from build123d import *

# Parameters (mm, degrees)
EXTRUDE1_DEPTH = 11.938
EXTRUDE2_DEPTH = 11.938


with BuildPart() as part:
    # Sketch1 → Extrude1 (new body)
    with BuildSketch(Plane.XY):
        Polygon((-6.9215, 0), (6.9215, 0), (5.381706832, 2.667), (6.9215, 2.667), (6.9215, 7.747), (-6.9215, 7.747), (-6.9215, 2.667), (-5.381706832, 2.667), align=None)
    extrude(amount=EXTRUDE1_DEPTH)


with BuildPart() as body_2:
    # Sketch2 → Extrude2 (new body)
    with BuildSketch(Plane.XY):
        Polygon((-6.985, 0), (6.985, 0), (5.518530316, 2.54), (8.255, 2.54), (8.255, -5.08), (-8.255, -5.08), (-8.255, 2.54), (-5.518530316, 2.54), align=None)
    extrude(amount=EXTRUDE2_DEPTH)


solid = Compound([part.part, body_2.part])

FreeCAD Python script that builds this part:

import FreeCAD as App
import Part
import Sketcher
Q = App.Units.Quantity


def add_polygon(sketch, points):
    """Adds a closed chain of lines whose ends are joined by coincident constraints."""
    first, n = sketch.GeometryCount, len(points)
    for a, b in zip(points, points[1:] + points[:1]):
        sketch.addGeometry(Part.LineSegment(App.Vector(*a, 0), App.Vector(*b, 0)), False)
    for i in range(n):
        sketch.addConstraint(Sketcher.Constraint("Coincident", first + i, 2, first + (i + 1) % n, 1))

doc = App.newDocument("Part")
params = doc.addObject("Spreadsheet::Sheet", "Params")
for row, (alias, value) in enumerate([
    ("sketch1_height", "0.2 in"),
    ("sketch1_width", "0.545 in"),
    ("pad1_length", "0.47 in"),
    ("sketch2_height", "0.3 in"),
    ("sketch2_width", "0.55 in"),
    ("sketch2_width2", "0.65 in"),
    ("pad2_length", "0.47 in"),
], start=1):
    params.set(f"A{row}", alias)
    params.set(f"B{row}", "=" + value)
    params.setAlias(f"B{row}", alias)

body = doc.addObject("PartDesign::Body", "Body")

# Sketch on XY plane
sketch1 = doc.addObject("Sketcher::SketchObject", "Sketch")
body.addObject(sketch1)
sketch1.AttachmentSupport = (doc.XY_Plane, [""])
sketch1.MapMode = "FlatFace"
add_polygon(sketch1, [(-6.9, 0), (6.9, 0), (5.4, 2.7), (6.9, 2.7), (6.9, 7.7), (-6.9, 7.7), (-6.9, 2.7), (-5.4, 2.7)])  # lines 0-7
sketch1.addConstraint([
    Sketcher.Constraint("Horizontal", 0),
    Sketcher.Constraint("Horizontal", 2),
    Sketcher.Constraint("Vertical", 3),
    Sketcher.Constraint("Horizontal", 4),
    Sketcher.Constraint("Vertical", 5),
    Sketcher.Constraint("Horizontal", 6),
    Sketcher.Constraint("Symmetric", 0, 2, 7, 2, -1, 1),
    Sketcher.Constraint("Symmetric", 2, 2, 5, 2, -2),
    Sketcher.Constraint("Vertical", 0, 2, 2, 2),
    Sketcher.Constraint("Equal", 2, 6),
    Sketcher.Constraint("DistanceY", 3, 1, 3, 2, Q("0.2 in")),
    Sketcher.Constraint("Angle", 1, Q("120 deg")),
    Sketcher.Constraint("DistanceX", 0, 1, 0, 2, Q("0.545 in")),
    Sketcher.Constraint("DistanceY", -1, 1, 1, 2, Q("0.105 in")),
])
sketch1.setExpression("Constraints[18]", "Params.sketch1_height")
sketch1.setExpression("Constraints[20]", "Params.sketch1_width")
pad1 = doc.addObject("PartDesign::Pad", "Pad")
body.addObject(pad1)
pad1.Profile = sketch1
pad1.setExpression("Length", "Params.pad1_length")
body2 = doc.addObject("PartDesign::Body", "Body001")

# Sketch on XY plane
sketch2 = doc.addObject("Sketcher::SketchObject", "Sketch001")
body2.addObject(sketch2)
sketch2.AttachmentSupport = (doc.getObject("XY_Plane001"), [""])
sketch2.MapMode = "FlatFace"
add_polygon(sketch2, [(7, 0), (-7, 0), (-5.5, 2.5), (-8.3, 2.5), (-8.3, -5.1), (8.3, -5.1), (8.3, 2.5), (5.5, 2.5)])  # lines 0-7
sketch2.addConstraint([
    Sketcher.Constraint("Horizontal", 0),
    Sketcher.Constraint("Horizontal", 2),
    Sketcher.Constraint("Vertical", 3),
    Sketcher.Constraint("Horizontal", 4),
    Sketcher.Constraint("Vertical", 5),
    Sketcher.Constraint("Horizontal", 6),
    Sketcher.Constraint("Symmetric", 0, 2, 7, 2, -1, 1),
    Sketcher.Constraint("Symmetric", 2, 2, 5, 2, -2),
    Sketcher.Constraint("Equal", 2, 6),
    Sketcher.Constraint("DistanceY", 3, 2, 3, 1, Q("0.3 in")),
    Sketcher.Constraint("Angle", 1, Q("60 deg")),
    Sketcher.Constraint("DistanceX", 0, 2, 0, 1, Q("0.55 in")),
    Sketcher.Constraint("DistanceX", 4, 1, 4, 2, Q("0.65 in")),
    Sketcher.Constraint("DistanceY", -1, 1, 1, 2, Q("0.1 in")),
])
sketch2.setExpression("Constraints[17]", "Params.sketch2_height")
sketch2.setExpression("Constraints[19]", "Params.sketch2_width")
sketch2.setExpression("Constraints[20]", "Params.sketch2_width2")
pad2 = doc.addObject("PartDesign::Pad", "Pad001")
body2.addObject(pad2)
pad2.Profile = sketch2
pad2.setExpression("Length", "Params.pad2_length")

doc.recompute()
